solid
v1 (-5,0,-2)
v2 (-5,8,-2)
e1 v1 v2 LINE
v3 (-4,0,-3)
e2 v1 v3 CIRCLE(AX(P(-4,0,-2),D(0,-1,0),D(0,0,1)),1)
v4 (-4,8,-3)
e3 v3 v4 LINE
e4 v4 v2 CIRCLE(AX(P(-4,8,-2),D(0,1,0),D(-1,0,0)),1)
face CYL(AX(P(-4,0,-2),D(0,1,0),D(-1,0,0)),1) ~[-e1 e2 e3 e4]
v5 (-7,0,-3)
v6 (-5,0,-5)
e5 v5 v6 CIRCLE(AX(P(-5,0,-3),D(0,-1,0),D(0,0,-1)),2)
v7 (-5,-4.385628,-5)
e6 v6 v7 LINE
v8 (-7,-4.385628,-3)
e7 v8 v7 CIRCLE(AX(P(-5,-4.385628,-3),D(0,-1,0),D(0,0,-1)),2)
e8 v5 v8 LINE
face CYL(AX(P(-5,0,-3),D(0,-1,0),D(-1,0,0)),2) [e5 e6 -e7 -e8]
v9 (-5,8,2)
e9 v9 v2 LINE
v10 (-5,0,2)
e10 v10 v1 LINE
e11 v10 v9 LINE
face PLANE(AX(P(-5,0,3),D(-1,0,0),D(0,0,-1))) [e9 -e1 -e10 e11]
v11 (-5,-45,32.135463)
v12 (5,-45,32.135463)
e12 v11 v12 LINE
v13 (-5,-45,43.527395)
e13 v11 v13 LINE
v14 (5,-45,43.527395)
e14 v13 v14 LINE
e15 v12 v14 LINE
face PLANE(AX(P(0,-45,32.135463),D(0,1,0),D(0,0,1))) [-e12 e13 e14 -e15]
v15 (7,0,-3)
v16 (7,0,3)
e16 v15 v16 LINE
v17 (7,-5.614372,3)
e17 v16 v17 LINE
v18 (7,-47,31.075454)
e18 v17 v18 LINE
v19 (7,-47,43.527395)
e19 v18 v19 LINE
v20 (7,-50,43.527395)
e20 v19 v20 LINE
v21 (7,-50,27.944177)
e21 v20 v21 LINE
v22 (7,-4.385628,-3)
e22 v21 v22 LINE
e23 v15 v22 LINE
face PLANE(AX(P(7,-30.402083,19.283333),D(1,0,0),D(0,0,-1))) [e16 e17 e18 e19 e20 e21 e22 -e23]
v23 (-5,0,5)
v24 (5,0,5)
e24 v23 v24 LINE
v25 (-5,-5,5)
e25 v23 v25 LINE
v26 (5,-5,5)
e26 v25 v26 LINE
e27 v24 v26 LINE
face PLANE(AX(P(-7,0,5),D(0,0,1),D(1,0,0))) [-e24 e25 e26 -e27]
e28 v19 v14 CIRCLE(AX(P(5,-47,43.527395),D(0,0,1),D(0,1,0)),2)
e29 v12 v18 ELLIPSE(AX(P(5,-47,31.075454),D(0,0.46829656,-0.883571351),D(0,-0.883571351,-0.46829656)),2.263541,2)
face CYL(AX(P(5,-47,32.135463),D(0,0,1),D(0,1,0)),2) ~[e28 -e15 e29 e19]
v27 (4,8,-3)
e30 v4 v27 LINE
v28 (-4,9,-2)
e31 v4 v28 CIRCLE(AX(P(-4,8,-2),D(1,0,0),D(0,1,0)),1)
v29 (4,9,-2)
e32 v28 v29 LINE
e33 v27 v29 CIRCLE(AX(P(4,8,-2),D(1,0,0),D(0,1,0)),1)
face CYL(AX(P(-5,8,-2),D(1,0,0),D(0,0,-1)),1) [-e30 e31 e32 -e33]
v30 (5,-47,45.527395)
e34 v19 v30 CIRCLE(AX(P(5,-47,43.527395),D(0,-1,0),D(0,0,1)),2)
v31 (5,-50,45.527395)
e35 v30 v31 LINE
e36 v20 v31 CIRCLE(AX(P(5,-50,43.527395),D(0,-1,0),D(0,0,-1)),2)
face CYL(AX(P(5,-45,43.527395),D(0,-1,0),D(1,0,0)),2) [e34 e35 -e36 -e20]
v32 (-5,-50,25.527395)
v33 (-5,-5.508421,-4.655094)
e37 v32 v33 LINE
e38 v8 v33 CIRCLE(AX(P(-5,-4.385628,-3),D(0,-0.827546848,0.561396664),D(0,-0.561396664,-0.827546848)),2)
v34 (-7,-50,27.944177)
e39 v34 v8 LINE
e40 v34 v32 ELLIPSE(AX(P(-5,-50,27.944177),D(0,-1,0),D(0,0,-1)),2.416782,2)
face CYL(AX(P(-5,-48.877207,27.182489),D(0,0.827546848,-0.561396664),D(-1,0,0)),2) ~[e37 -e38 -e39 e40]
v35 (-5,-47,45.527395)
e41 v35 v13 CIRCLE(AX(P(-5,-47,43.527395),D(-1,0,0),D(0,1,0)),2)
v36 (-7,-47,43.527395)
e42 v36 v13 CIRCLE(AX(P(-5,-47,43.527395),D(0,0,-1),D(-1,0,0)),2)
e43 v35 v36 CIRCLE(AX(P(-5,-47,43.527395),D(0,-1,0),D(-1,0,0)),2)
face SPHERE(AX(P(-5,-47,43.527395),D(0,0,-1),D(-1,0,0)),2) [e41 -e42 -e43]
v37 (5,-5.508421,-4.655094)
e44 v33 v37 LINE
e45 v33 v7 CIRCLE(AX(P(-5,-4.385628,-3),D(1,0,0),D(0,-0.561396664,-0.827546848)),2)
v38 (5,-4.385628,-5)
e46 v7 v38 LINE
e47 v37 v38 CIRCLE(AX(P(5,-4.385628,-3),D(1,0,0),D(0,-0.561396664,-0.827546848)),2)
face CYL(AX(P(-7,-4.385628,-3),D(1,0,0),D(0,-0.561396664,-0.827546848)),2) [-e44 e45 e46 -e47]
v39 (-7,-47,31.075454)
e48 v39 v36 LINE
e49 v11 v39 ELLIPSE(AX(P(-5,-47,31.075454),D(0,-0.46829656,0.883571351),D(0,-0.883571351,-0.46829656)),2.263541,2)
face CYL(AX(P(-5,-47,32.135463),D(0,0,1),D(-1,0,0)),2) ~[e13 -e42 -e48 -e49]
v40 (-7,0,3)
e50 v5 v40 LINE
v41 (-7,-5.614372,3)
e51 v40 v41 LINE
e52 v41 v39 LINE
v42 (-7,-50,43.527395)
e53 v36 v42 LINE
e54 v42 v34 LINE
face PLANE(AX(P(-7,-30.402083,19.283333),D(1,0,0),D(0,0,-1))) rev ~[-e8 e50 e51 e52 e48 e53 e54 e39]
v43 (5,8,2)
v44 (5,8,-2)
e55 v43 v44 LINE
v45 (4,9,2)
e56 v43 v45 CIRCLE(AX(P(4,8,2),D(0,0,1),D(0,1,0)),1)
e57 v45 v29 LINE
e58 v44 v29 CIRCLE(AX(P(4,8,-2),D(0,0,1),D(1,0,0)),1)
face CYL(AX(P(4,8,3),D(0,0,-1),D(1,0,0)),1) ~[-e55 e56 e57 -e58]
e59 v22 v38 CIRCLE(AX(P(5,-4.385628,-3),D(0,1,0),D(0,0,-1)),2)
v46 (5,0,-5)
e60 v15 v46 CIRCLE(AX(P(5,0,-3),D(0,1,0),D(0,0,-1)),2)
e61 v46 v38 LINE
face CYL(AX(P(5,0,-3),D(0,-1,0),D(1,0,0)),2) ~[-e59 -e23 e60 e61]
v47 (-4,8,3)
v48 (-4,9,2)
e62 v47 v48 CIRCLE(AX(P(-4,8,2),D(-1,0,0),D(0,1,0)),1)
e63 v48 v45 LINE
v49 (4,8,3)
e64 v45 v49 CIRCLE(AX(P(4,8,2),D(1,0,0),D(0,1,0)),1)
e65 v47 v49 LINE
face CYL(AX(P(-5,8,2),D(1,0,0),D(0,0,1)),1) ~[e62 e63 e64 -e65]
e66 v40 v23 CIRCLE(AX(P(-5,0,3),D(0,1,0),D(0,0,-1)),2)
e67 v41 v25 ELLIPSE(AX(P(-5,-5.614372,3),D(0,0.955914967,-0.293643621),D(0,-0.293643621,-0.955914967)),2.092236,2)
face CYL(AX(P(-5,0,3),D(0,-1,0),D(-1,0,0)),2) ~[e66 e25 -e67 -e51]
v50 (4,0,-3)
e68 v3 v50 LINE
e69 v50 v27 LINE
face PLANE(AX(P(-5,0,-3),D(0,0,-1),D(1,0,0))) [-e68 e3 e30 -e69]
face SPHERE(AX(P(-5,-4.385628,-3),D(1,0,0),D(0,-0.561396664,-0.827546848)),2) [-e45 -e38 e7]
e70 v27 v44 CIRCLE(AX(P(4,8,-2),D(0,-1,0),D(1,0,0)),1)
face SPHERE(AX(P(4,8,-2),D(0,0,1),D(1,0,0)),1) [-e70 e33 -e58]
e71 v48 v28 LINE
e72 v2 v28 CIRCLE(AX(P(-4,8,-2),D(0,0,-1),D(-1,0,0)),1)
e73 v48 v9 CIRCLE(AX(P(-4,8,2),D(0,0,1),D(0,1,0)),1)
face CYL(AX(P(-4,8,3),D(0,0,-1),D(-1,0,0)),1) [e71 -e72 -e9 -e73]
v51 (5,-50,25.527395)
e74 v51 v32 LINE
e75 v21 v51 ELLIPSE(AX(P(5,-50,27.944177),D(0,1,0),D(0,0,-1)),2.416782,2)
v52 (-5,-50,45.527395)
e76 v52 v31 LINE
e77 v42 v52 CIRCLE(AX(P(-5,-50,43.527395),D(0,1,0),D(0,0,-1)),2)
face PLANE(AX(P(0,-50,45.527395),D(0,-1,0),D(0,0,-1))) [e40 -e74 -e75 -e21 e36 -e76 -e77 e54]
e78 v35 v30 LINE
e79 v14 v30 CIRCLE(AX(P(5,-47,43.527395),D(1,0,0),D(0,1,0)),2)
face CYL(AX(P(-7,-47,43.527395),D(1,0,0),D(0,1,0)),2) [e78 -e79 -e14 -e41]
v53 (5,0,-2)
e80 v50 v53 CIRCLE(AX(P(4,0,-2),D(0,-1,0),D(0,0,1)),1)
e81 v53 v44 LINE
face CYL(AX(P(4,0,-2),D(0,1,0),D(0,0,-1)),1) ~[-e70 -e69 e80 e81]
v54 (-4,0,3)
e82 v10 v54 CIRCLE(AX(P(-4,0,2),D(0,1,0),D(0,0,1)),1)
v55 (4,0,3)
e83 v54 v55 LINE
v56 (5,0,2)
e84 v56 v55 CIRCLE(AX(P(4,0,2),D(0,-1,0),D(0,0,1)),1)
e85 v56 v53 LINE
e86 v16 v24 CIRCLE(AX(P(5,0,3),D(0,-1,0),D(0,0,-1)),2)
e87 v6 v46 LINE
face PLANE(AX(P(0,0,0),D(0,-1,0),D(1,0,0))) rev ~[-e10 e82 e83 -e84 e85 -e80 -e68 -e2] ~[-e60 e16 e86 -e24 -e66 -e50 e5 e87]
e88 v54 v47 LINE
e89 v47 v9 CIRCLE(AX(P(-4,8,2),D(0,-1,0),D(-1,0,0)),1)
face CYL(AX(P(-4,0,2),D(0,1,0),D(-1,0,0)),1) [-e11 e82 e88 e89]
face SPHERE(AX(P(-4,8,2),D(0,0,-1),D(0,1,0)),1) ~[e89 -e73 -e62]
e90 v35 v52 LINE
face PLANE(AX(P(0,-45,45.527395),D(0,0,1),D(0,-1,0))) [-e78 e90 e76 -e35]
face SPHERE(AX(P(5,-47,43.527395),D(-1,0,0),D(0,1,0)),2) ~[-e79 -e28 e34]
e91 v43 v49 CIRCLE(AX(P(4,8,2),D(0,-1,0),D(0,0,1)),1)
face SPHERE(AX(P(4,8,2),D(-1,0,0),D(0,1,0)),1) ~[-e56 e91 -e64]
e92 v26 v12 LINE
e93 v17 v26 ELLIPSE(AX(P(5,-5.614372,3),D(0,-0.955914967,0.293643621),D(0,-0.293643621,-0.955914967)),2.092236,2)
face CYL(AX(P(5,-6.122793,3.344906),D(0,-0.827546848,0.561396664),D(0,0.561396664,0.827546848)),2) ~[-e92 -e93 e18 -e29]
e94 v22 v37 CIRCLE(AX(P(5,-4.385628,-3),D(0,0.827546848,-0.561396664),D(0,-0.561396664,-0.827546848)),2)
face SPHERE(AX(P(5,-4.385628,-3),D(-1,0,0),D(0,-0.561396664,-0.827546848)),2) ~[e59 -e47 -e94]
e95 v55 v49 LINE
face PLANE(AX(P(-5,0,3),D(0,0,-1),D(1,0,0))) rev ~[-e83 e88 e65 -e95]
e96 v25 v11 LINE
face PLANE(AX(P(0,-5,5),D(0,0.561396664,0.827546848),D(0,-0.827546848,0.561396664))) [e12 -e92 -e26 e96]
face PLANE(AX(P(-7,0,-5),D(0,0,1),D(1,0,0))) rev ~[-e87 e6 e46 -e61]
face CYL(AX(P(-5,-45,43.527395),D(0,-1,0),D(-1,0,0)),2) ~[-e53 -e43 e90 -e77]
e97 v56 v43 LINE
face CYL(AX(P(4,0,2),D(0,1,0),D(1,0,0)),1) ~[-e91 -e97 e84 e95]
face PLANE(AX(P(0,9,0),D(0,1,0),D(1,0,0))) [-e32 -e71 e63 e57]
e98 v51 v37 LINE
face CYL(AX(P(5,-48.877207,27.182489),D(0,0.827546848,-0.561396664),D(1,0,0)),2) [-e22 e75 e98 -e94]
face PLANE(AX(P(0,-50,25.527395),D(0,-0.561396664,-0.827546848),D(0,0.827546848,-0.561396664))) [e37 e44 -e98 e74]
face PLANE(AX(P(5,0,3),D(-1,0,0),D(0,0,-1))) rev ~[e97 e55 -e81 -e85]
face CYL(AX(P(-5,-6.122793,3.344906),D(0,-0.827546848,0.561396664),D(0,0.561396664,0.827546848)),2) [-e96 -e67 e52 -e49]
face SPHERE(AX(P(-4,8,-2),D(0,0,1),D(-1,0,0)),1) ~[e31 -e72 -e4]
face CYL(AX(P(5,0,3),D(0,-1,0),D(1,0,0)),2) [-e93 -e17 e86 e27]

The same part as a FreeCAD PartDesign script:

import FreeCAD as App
import Part
import Sketcher
from FreeCAD import Vector


def edges_at(feature, points):
    """Names of the edges that pass closest to the given points."""
    edges = feature.Shape.Edges
    near = lambda p: min(range(len(edges)), key=lambda i: edges[i].distToShape(Part.Vertex(*p))[0])
    return sorted({f"Edge{near(p) + 1}" for p in points})

doc = App.newDocument("Part")
body = doc.addObject("PartDesign::Body", "Body")

# Sketch on XZ plane
sketch1 = body.newObject("Sketcher::SketchObject", "Sketch")
sketch1.AttachmentSupport = (doc.getObject("XZ_Plane"), [""])
sketch1.MapMode = "FlatFace"
sketch1.addGeometry([
    Part.LineSegment(Vector(-5, -3, 0), Vector(-5, 3, 0)),
    Part.LineSegment(Vector(-5, 3, 0), Vector(5, 3, 0)),
    Part.LineSegment(Vector(5, 3, 0), Vector(5, -3, 0)),
    Part.LineSegment(Vector(5, -3, 0), Vector(-5, -3, 0)),
], False)
sketch1.addConstraint([
    Sketcher.Constraint("Coincident", 0, 2, 1, 1),
    Sketcher.Constraint("Coincident", 1, 2, 2, 1),
    Sketcher.Constraint("Coincident", 2, 2, 3, 1),
    Sketcher.Constraint("Coincident", 3, 2, 0, 1),
    Sketcher.Constraint("Vertical", 0),
    Sketcher.Constraint("Horizontal", 1),
    Sketcher.Constraint("Vertical", 2),
    Sketcher.Constraint("Horizontal", 3),
    Sketcher.Constraint("Symmetric", 0, 2, 2, 2, -1, 1),
    Sketcher.Constraint("DistanceX", 1, 1, 1, 2, 10.0),
    Sketcher.Constraint("DistanceY", 0, 1, 0, 2, 6.0),
])
pad1 = body.newObject("PartDesign::Pad", "Pad")
pad1.Profile = sketch1
pad1.Length = 9
pad1.Reversed = True

# Sketch on XZ plane
sketch2 = body.newObject("Sketcher::SketchObject", "Sketch001")
sketch2.AttachmentSupport = (doc.getObject("XZ_Plane"), [""])
sketch2.MapMode = "FlatFace"
sketch2.addGeometry([
    Part.LineSegment(Vector(-7, 5, 0), Vector(-7, -5, 0)),
    Part.LineSegment(Vector(-7, -5, 0), Vector(7, -5, 0)),
    Part.LineSegment(Vector(7, -5, 0), Vector(7, 5, 0)),
    Part.LineSegment(Vector(7, 5, 0), Vector(-7, 5, 0)),
], False)
sketch2.addConstraint([
    Sketcher.Constraint("Coincident", 0, 2, 1, 1),
    Sketcher.Constraint("Coincident", 1, 2, 2, 1),
    Sketcher.Constraint("Coincident", 2, 2, 3, 1),
    Sketcher.Constraint("Coincident", 3, 2, 0, 1),
    Sketcher.Constraint("Vertical", 0),
    Sketcher.Constraint("Horizontal", 1),
    Sketcher.Constraint("Vertical", 2),
    Sketcher.Constraint("Horizontal", 3),
    Sketcher.Constraint("Symmetric", 0, 2, 2, 2, -1, 1),
    Sketcher.Constraint("DistanceX", 1, 1, 1, 2, 14.0),
    Sketcher.Constraint("DistanceY", 0, 2, 0, 1, 10.0),
])
pad2 = body.newObject("PartDesign::Pad", "Pad001")
pad2.Profile = sketch2
pad2.Length = 5

# Sketch on YZ plane
sketch3 = body.newObject("Sketcher::SketchObject", "Sketch002")
sketch3.AttachmentSupport = (doc.getObject("YZ_Plane"), [""])
sketch3.MapMode = "FlatFace"
sketch3.addGeometry([
    Part.LineSegment(Vector(-5, 5, 0), Vector(-45, 32, 0)),  # 0
    Part.LineSegment(Vector(-45, 32, 0), Vector(-45, 46, 0)),  # 1
    Part.LineSegment(Vector(-45, 46, 0), Vector(-50, 46, 0)),  # 2
    Part.LineSegment(Vector(-50, 46, 0), Vector(-50, 26, 0)),  # 3
    Part.LineSegment(Vector(-50, 26, 0), Vector(-5, -5, 0)),  # 4
    Part.LineSegment(Vector(-5, -5, 0), Vector(-5, 5, 0)),  # 5
], False)
sketch3.addConstraint([
    Sketcher.Constraint("Coincident", 0, 2, 1, 1),
    Sketcher.Constraint("Coincident", 1, 2, 2, 1),
    Sketcher.Constraint("Coincident", 2, 2, 3, 1),
    Sketcher.Constraint("Coincident", 3, 2, 4, 1),
    Sketcher.Constraint("Coincident", 4, 2, 5, 1),
    Sketcher.Constraint("Coincident", 5, 2, 0, 1),
    Sketcher.Constraint("Vertical", 1),
    Sketcher.Constraint("Horizontal", 2),
    Sketcher.Constraint("Vertical", 3),
    Sketcher.Constraint("Vertical", 5),
    Sketcher.Constraint("Parallel", 0, 4),
    Sketcher.Constraint("DistanceX", 2, 2, 2, 1, 5.0),
    Sketcher.Constraint("DistanceY", 3, 2, 3, 1, 20.0),
    Sketcher.Constraint("DistanceY", 5, 1, 5, 2, 10.0),
    Sketcher.Constraint("DistanceX", 0, 2, -1, 1, 45.0),
    Sketcher.Constraint("DistanceX", 4, 2, -1, 1, 5.0),
    Sketcher.Constraint("DistanceY", 4, 2, -1, 1, 5.0),
    Sketcher.Constraint("DistanceY", 1, 1, 1, 2, 13.391933),
])
pad3 = body.newObject("PartDesign::Pad", "Pad002")
pad3.Profile = sketch3
pad3.Length = 14
pad3.Midplane = True
doc.recompute()

fillet = body.newObject("PartDesign::Fillet", "Fillet")
fillet.Base = (pad3, edges_at(pad3, [
    (7, -2.5, -5),
    (7, -2.5, 5),
    (-7, -2.5, 5),
    (-7, -2.5, -5),
    (0, -5, -5),
    (-7, -25, 18.568),
    (-7, -45, 38.831),
    (-7, -47.5, 45.527),
    (0, -45, 45.527),
    (-7, -27.5, 10.264),
    (7, -25, 18.568),
    (7, -45, 38.831),
    (7, -47.5, 45.527),
    (7, -27.5, 10.264),
]))
fillet.Radius = 2
doc.recompute()

fillet2 = body.newObject("PartDesign::Fillet", "Fillet001")
fillet2.Base = (fillet, edges_at(fillet, [
    (-5, 9, 0),
    (0, 9, 3),
    (5, 9, 0),
    (5, 4.5, 3),
    (-5, 4.5, 3),
    (-5, 4.5, -3),
    (5, 4.5, -3),
    (0, 9, -3),
]))
fillet2.Radius = 1

doc.recompute()
